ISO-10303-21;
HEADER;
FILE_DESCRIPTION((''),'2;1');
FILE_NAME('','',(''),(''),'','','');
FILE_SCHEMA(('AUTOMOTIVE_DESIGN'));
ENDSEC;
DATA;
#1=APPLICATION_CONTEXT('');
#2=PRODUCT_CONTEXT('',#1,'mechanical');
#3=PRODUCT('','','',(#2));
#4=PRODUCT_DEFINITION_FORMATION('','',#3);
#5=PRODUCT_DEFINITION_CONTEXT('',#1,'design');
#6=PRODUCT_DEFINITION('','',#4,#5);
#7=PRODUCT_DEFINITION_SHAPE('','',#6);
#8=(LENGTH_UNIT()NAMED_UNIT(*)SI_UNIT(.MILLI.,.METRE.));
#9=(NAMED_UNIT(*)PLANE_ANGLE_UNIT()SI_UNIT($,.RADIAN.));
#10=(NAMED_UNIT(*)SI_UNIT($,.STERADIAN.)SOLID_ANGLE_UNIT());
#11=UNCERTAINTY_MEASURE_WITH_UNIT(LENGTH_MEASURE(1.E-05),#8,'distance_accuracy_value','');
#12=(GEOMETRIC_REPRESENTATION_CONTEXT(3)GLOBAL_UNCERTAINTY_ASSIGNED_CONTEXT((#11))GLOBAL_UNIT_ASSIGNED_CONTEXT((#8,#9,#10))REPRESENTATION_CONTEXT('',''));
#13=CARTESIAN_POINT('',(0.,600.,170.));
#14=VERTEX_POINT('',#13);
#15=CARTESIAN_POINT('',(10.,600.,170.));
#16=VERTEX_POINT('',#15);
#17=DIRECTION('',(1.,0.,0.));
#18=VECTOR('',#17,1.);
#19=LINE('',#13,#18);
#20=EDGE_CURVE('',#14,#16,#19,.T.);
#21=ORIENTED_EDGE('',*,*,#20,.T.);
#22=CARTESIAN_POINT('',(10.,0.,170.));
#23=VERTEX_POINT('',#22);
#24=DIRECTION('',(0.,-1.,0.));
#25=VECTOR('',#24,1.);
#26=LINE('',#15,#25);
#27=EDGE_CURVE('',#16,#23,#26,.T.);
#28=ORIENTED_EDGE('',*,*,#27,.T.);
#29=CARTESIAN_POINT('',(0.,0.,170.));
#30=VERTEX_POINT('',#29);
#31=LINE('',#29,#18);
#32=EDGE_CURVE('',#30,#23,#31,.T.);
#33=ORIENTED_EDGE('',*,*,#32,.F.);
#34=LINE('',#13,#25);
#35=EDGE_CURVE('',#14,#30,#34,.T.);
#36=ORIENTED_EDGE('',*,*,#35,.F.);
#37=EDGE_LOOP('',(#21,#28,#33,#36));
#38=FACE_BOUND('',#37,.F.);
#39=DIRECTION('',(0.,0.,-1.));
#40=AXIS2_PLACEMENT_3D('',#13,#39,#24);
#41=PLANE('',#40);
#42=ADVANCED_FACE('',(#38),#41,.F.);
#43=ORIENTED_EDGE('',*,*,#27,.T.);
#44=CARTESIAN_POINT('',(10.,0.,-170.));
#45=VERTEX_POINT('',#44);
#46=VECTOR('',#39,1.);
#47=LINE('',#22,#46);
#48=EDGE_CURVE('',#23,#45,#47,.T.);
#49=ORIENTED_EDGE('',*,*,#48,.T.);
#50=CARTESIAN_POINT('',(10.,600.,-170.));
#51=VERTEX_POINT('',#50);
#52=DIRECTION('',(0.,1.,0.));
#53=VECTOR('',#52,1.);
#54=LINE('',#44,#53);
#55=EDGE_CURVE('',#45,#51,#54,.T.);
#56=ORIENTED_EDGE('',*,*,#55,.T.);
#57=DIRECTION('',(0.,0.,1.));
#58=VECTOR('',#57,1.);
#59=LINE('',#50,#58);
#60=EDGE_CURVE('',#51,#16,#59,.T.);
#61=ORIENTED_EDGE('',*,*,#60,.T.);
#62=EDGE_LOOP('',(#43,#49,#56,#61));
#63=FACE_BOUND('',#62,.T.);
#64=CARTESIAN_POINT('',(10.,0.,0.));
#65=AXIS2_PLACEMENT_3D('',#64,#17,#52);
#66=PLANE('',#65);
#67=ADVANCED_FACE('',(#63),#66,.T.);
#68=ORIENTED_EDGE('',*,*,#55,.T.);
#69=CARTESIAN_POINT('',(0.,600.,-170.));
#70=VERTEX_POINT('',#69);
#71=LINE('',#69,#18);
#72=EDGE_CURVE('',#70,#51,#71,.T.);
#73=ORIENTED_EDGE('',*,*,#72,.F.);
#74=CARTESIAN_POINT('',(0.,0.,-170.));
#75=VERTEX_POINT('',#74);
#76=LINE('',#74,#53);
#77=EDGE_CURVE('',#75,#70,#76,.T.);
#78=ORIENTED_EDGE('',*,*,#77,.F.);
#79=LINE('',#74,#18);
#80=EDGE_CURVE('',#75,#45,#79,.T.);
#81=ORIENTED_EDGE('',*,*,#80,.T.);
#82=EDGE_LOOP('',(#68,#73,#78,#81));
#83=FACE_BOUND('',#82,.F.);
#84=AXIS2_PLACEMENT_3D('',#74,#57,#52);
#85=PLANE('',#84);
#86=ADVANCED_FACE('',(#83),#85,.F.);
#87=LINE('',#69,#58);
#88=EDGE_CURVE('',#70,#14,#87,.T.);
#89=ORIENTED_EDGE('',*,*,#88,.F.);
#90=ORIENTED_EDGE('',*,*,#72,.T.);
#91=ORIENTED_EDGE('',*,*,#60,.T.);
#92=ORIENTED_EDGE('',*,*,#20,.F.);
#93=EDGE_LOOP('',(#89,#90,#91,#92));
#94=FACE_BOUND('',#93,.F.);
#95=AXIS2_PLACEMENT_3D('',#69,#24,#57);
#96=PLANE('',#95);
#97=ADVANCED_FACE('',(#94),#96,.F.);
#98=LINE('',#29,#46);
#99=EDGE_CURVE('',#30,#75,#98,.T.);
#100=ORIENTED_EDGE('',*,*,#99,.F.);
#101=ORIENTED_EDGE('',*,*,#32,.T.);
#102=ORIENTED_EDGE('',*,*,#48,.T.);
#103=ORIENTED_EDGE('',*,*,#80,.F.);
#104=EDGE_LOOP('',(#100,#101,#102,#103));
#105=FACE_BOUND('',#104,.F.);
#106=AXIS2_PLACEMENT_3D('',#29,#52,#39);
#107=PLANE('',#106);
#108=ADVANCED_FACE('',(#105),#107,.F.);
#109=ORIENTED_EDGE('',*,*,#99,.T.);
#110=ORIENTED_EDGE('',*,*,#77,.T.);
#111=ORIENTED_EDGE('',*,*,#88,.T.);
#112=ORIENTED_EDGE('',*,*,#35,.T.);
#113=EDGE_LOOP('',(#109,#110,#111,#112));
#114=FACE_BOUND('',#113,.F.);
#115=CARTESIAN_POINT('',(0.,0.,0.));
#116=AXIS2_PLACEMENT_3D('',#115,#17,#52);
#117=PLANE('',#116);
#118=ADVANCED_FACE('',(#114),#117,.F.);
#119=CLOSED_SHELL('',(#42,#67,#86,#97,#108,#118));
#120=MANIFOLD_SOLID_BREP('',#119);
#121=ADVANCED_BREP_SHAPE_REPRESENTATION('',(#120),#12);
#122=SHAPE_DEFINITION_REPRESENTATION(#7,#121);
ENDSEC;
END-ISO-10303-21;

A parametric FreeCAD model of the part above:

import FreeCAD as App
import Part
import Sketcher


def add_polygon(sketch, points):
    """Adds a closed chain of lines whose ends are joined by coincident constraints."""
    first, n = sketch.GeometryCount, len(points)
    for a, b in zip(points, points[1:] + points[:1]):
        sketch.addGeometry(Part.LineSegment(App.Vector(*a, 0), App.Vector(*b, 0)), False)
    for i in range(n):
        sketch.addConstraint(Sketcher.Constraint("Coincident", first + i, 2, first + (i + 1) % n, 1))

doc = App.newDocument("Part")
body = doc.addObject("PartDesign::Body", "Body")

# Sketch on YZ plane
sketch1 = body.newObject("Sketcher::SketchObject", "Sketch")
sketch1.AttachmentSupport = (doc.getObject("YZ_Plane"), [""])
sketch1.MapMode = "FlatFace"
add_polygon(sketch1, [(600, -170), (600, 170), (0, 170), (0, -170)])  # lines 0-3
sketch1.addConstraint(Sketcher.Constraint("Vertical", 0))
sketch1.addConstraint(Sketcher.Constraint("Horizontal", 1))
sketch1.addConstraint(Sketcher.Constraint("Vertical", 2))
sketch1.addConstraint(Sketcher.Constraint("Horizontal", 3))
sketch1.addConstraint(Sketcher.Constraint("Symmetric", 1, 2, 2, 2, -1, 1))
sketch1.addConstraint(Sketcher.Constraint("DistanceX", 1, 2, 1, 1, 600.0))
sketch1.addConstraint(Sketcher.Constraint("DistanceY", 0, 1, 0, 2, 340.0))
pad1 = body.newObject("PartDesign::Pad", "Pad")
pad1.Profile = sketch1
pad1.Length = 10

doc.recompute()
